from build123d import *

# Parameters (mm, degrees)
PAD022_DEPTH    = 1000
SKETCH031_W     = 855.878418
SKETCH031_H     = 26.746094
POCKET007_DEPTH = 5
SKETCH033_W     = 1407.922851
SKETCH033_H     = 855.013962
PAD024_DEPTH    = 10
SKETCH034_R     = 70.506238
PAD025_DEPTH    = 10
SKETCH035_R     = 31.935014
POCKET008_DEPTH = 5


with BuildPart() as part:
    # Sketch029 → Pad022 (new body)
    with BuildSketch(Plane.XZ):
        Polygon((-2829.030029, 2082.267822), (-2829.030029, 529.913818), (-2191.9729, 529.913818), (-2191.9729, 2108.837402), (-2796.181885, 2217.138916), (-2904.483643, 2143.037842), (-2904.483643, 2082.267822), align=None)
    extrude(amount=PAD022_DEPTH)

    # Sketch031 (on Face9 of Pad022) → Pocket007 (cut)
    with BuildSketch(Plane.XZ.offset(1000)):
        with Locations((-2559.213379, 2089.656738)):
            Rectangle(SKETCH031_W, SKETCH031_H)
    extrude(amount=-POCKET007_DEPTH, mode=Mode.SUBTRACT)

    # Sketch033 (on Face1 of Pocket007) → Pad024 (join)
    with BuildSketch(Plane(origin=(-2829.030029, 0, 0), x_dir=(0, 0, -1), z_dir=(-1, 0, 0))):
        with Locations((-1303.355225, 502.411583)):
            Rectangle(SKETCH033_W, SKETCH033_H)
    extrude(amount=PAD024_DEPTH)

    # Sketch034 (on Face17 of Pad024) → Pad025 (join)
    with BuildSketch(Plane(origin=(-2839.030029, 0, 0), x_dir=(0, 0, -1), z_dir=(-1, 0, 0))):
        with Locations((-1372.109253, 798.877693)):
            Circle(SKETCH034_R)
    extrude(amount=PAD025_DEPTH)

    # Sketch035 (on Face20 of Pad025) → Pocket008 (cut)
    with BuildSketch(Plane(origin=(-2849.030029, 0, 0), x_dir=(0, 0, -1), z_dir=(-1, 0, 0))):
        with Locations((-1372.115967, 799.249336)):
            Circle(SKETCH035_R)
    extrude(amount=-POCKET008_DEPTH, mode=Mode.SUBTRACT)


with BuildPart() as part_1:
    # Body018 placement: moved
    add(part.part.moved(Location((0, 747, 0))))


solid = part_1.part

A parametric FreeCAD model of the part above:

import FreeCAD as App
import Part
import Sketcher

V = App.Vector
Q = App.Units.Quantity


def add_polygon(sketch, points):
    """Adds a closed chain of lines whose ends are joined by coincident constraints."""
    first, n = sketch.GeometryCount, len(points)
    for a, b in zip(points, points[1:] + points[:1]):
        sketch.addGeometry(Part.LineSegment(App.Vector(*a, 0), App.Vector(*b, 0)), False)
    for i in range(n):
        sketch.addConstraint(Sketcher.Constraint("Coincident", first + i, 2, first + (i + 1) % n, 1))

doc = App.newDocument("Part")
params = doc.addObject("Spreadsheet::Sheet", "Params")
for row, (alias, value) in enumerate([
    ("pad1_length", "1000 mm"),
    ("pocket1_length", "5 mm"),
    ("pad2_length", "10 mm"),
    ("pad3_length", "10 mm"),
    ("pocket2_length", "5 mm"),
], start=1):
    params.set(f"A{row}", alias)
    params.set(f"B{row}", "=" + value)
    params.setAlias(f"B{row}", alias)

body = doc.addObject("PartDesign::Body", "Body")

# Sketch on XZ plane
sketch1 = doc.addObject("Sketcher::SketchObject", "Sketch")
body.addObject(sketch1)
sketch1.AttachmentSupport = (doc.XZ_Plane, [""])
sketch1.MapMode = "FlatFace"
add_polygon(sketch1, [(-2829, 2082), (-2829, 530), (-2192, 530), (-2192, 2109), (-2796, 2217), (-2904, 2143), (-2904, 2082)])  # lines 0-6
sketch1.addConstraint(Sketcher.Constraint("Vertical", 0))
sketch1.addConstraint(Sketcher.Constraint("Horizontal", 1))
sketch1.addConstraint(Sketcher.Constraint("Vertical", 2))
sketch1.addConstraint(Sketcher.Constraint("Vertical", 5))
sketch1.addConstraint(Sketcher.Constraint("Horizontal", 6))
sketch1.addConstraint(Sketcher.Constraint("DistanceX", 1, 1, 1, 2, Q("637.057129 mm")))
sketch1.addConstraint(Sketcher.Constraint("DistanceY", 5, 2, 5, 1, Q("60.77002 mm")))
sketch1.addConstraint(Sketcher.Constraint("DistanceX", 1, 2, -1, 1, Q("2191.9729 mm")))
sketch1.addConstraint(Sketcher.Constraint("Distance", 3, Q("613.838509 mm")))
sketch1.addConstraint(Sketcher.Constraint("Distance", 4, Q("131.225912 mm")))
sketch1.addConstraint(Sketcher.Constraint("DistanceX", 6, 1, 6, 2, Q("75.453614 mm")))
sketch1.addConstraint(Sketcher.Constraint("DistanceY", 0, 2, 0, 1, Q("1552.354004 mm")))
sketch1.addConstraint(Sketcher.Constraint("DistanceY", 2, 1, 2, 2, Q("1578.923584 mm")))
sketch1.addConstraint(Sketcher.Constraint("DistanceY", -1, 1, 0, 2, Q("529.913818 mm")))
pad1 = doc.addObject("PartDesign::Pad", "Pad")
body.addObject(pad1)
pad1.Profile = sketch1
pad1.setExpression("Length", "Params.pad1_length")

# Sketch on XZ plane
sketch2 = doc.addObject("Sketcher::SketchObject", "Sketch001")
body.addObject(sketch2)
sketch2.AttachmentSupport = (doc.XZ_Plane, [""])
sketch2.MapMode = "FlatFace"
sketch2.AttachmentOffset = App.Placement(V(0, 0, 1000), App.Rotation())
add_polygon(sketch2, [(-2987, 2103), (-2987, 2076), (-2131, 2076), (-2131, 2103)])  # lines 0-3
sketch2.addConstraint(Sketcher.Constraint("Vertical", 0))
sketch2.addConstraint(Sketcher.Constraint("Horizontal", 1))
sketch2.addConstraint(Sketcher.Constraint("Vertical", 2))
sketch2.addConstraint(Sketcher.Constraint("Horizontal", 3))
sketch2.addConstraint(Sketcher.Constraint("DistanceX", 1, 1, 1, 2, Q("855.878418 mm")))
sketch2.addConstraint(Sketcher.Constraint("DistanceY", 0, 2, 0, 1, Q("26.746094 mm")))
sketch2.addConstraint(Sketcher.Constraint("DistanceY", -1, 1, 0, 2, Q("2076.283691 mm")))
sketch2.addConstraint(Sketcher.Constraint("DistanceX", 1, 2, -1, 1, Q("2131.27417 mm")))
pocket1 = doc.addObject("PartDesign::Pocket", "Pocket")
body.addObject(pocket1)
pocket1.Profile = sketch2
pocket1.setExpression("Length", "Params.pocket1_length")

# Sketch on YZ plane
sketch3 = doc.addObject("Sketcher::SketchObject", "Sketch002")
body.addObject(sketch3)
sketch3.AttachmentSupport = (doc.YZ_Plane, [""])
sketch3.MapMode = "FlatFace"
sketch3.AttachmentOffset = App.Placement(V(0, 0, -2829.030029), App.Rotation())
add_polygon(sketch3, [(-930, 2007), (-75, 2007), (-75, 599), (-930, 599)])  # lines 0-3
sketch3.addConstraint(Sketcher.Constraint("Horizontal", 0))
sketch3.addConstraint(Sketcher.Constraint("Vertical", 1))
sketch3.addConstraint(Sketcher.Constraint("Horizontal", 2))
sketch3.addConstraint(Sketcher.Constraint("Vertical", 3))
sketch3.addConstraint(Sketcher.Constraint("DistanceX", 0, 1, 0, 2, Q("855.013962 mm")))
sketch3.addConstraint(Sketcher.Constraint("DistanceY", 1, 2, 1, 1, Q("1407.922851 mm")))
sketch3.addConstraint(Sketcher.Constraint("DistanceX", 0, 2, -1, 1, Q("74.904602 mm")))
sketch3.addConstraint(Sketcher.Constraint("DistanceY", -1, 1, 1, 2, Q("599.3938 mm")))
pad2 = doc.addObject("PartDesign::Pad", "Pad001")
body.addObject(pad2)
pad2.Profile = sketch3
pad2.setExpression("Length", "Params.pad2_length")
pad2.Reversed = True

# Sketch on YZ plane
sketch4 = doc.addObject("Sketcher::SketchObject", "Sketch003")
body.addObject(sketch4)
sketch4.AttachmentSupport = (doc.YZ_Plane, [""])
sketch4.MapMode = "FlatFace"
sketch4.AttachmentOffset = App.Placement(V(0, 0, -2839.030029), App.Rotation())
sketch4.addGeometry(Part.Circle(V(-799, 1372, 0), V(0, 0, 1), 71), False)
sketch4.addConstraint(Sketcher.Constraint("Diameter", 0, Q("141.012476 mm")))
sketch4.addConstraint(Sketcher.Constraint("DistanceX", 0, 3, -1, 1, Q("798.877693 mm")))
sketch4.addConstraint(Sketcher.Constraint("DistanceY", -1, 1, 0, 3, Q("1372.109253 mm")))
pad3 = doc.addObject("PartDesign::Pad", "Pad002")
body.addObject(pad3)
pad3.Profile = sketch4
pad3.setExpression("Length", "Params.pad3_length")
pad3.Reversed = True

# Sketch on YZ plane
sketch5 = doc.addObject("Sketcher::SketchObject", "Sketch004")
body.addObject(sketch5)
sketch5.AttachmentSupport = (doc.YZ_Plane, [""])
sketch5.MapMode = "FlatFace"
sketch5.AttachmentOffset = App.Placement(V(0, 0, -2849.030029), App.Rotation())
sketch5.addGeometry(Part.Circle(V(-799, 1372, 0), V(0, 0, 1), 32), False)
sketch5.addConstraint(Sketcher.Constraint("Diameter", 0, Q("63.870028 mm")))
sketch5.addConstraint(Sketcher.Constraint("DistanceX", 0, 3, -1, 1, Q("799.249336 mm")))
sketch5.addConstraint(Sketcher.Constraint("DistanceY", -1, 1, 0, 3, Q("1372.115967 mm")))
pocket2 = doc.addObject("PartDesign::Pocket", "Pocket001")
body.addObject(pocket2)
pocket2.Profile = sketch5
pocket2.setExpression("Length", "Params.pocket2_length")
pocket2.Reversed = True
body2 = doc.addObject("PartDesign::Body", "Body001")
doc.recompute()

body.Placement = App.Placement(V(0, 747, 0), App.Rotation(V(0, 0, 1), 0))
boolean = doc.addObject("PartDesign::Boolean", "Boolean")
body2.addObject(boolean)
boolean.Type = "Fuse"
boolean.addObjects([body])

doc.recompute()
